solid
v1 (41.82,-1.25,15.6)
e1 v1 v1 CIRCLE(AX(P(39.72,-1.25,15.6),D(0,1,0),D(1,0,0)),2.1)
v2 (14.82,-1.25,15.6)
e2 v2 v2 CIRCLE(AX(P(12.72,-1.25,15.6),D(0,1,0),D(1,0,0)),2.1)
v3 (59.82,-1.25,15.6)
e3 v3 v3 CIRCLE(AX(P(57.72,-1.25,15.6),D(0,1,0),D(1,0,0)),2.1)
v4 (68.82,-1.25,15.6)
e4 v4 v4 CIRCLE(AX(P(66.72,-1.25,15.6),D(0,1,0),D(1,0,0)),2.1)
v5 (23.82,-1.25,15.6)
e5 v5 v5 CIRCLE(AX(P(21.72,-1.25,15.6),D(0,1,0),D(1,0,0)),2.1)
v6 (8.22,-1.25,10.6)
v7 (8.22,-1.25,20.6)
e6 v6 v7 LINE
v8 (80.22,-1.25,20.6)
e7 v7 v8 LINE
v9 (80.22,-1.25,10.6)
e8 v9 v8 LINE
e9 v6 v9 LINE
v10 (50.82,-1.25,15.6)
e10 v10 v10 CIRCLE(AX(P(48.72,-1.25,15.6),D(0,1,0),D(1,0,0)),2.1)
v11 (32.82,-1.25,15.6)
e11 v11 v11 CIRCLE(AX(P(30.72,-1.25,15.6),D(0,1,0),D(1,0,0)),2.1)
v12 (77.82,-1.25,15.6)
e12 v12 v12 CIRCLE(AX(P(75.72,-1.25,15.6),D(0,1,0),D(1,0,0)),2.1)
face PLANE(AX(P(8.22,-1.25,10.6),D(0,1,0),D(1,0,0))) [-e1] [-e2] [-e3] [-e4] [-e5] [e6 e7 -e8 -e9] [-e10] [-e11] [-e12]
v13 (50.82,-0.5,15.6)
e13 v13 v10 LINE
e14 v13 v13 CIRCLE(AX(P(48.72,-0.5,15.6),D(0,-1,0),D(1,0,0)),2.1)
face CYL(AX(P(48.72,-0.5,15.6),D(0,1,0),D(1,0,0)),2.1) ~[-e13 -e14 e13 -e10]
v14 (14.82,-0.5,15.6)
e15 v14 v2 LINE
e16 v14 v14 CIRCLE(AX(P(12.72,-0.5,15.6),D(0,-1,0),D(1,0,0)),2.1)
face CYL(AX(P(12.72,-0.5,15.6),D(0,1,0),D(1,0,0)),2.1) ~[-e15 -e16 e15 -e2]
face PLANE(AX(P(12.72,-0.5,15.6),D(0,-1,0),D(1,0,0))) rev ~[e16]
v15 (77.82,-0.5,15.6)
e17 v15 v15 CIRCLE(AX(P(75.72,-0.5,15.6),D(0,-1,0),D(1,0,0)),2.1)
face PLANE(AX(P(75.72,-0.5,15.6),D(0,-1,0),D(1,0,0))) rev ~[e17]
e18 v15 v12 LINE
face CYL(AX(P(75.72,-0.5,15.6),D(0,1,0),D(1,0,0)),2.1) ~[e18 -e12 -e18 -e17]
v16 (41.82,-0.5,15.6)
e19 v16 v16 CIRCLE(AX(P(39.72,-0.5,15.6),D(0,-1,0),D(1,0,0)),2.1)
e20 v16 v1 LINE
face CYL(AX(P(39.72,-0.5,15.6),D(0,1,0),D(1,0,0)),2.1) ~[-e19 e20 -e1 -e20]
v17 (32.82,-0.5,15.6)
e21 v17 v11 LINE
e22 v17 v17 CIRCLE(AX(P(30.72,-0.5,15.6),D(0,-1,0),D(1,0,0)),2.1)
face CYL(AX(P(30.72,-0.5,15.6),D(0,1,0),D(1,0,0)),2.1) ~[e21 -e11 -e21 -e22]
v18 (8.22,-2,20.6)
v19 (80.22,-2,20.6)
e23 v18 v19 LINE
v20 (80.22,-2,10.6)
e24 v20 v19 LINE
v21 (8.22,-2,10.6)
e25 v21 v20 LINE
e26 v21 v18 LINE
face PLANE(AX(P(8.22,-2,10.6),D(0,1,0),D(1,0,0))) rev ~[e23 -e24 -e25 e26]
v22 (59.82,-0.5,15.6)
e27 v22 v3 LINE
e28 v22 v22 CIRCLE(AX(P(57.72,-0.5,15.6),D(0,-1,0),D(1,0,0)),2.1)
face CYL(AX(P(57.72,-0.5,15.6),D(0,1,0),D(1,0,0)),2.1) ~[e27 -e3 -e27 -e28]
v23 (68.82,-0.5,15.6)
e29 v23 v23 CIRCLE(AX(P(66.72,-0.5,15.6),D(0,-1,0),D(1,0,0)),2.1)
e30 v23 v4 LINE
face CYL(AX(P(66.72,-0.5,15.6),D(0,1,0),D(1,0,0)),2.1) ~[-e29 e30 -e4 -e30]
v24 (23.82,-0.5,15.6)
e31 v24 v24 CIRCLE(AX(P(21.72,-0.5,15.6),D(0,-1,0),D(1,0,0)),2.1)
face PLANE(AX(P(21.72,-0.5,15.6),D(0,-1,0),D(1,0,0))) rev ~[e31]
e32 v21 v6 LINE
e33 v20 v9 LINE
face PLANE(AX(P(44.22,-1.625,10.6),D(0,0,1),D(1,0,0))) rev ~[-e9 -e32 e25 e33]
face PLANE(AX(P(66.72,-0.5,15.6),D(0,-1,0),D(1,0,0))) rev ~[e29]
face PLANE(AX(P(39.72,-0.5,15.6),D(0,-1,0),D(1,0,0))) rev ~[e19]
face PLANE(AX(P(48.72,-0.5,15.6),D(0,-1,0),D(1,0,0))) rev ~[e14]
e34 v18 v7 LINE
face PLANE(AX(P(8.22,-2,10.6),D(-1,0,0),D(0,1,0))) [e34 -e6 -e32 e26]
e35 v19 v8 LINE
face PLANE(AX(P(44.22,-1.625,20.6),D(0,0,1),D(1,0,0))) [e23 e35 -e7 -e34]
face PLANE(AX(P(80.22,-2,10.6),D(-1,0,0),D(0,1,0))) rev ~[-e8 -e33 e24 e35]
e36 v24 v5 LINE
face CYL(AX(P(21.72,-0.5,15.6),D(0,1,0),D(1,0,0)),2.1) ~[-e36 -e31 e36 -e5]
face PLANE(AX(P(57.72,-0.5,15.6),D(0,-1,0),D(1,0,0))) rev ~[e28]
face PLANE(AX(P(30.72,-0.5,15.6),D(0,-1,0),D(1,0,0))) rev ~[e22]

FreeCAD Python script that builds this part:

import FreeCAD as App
import Part
import Sketcher

V = App.Vector


def add_polygon(sketch, points):
    """Adds a closed chain of lines whose ends are joined by coincident constraints."""
    first, n = sketch.GeometryCount, len(points)
    for a, b in zip(points, points[1:] + points[:1]):
        sketch.addGeometry(Part.LineSegment(App.Vector(*a, 0), App.Vector(*b, 0)), False)
    for i in range(n):
        sketch.addConstraint(Sketcher.Constraint("Coincident", first + i, 2, first + (i + 1) % n, 1))

doc = App.newDocument("Part")
params = doc.addObject("Spreadsheet::Sheet", "Params")
for row, (alias, value) in enumerate([
    ("sketch1_diameter", "4.2 mm"),
    ("pad1_length", "1.5 mm"),
    ("sketch2_diameter", "4.2 mm"),
    ("pad2_length", "1.5 mm"),
    ("sketch3_diameter", "4.2 mm"),
    ("pad3_length", "1.5 mm"),
    ("sketch4_diameter", "4.2 mm"),
    ("pad4_length", "1.5 mm"),
    ("sketch5_diameter", "4.2 mm"),
    ("pad5_length", "1.5 mm"),
    ("sketch6_diameter", "4.2 mm"),
    ("pad6_length", "1.5 mm"),
    ("sketch7_diameter", "4.2 mm"),
    ("pad7_length", "1.5 mm"),
    ("sketch8_diameter", "4.2 mm"),
    ("pad8_length", "1.5 mm"),
    ("sketch9_width", "72 mm"),
    ("sketch9_height", "0.75 mm"),
    ("pad9_length", "10 mm"),
], start=1):
    params.set(f"A{row}", alias)
    params.set(f"B{row}", "=" + value)
    params.setAlias(f"B{row}", alias)

body = doc.addObject("PartDesign::Body", "Body")

# Sketch on XY plane
sketch1 = body.newObject("Sketcher::SketchObject", "Sketch")
sketch1.AttachmentSupport = (doc.getObject("XY_Plane"), [""])
sketch1.MapMode = "FlatFace"
sketch1.addGeometry(Part.Circle(V(0, 0, 0), V(0, 0, 1), 2.1), False)
sketch1.addConstraint(Sketcher.Constraint("Coincident", 0, 3, -1, 1))
sketch1.addConstraint(Sketcher.Constraint("Diameter", 0, 4.2))
sketch1.setExpression("Constraints[1]", "Params.sketch1_diameter")
pad1 = body.newObject("PartDesign::Pad", "Pad")
pad1.Profile = sketch1
pad1.setExpression("Length", "Params.pad1_length")
body2 = doc.addObject("PartDesign::Body", "Body001")
doc.recompute()

body.Placement = App.Placement(V(0, 0, 0), App.Rotation(V(1, 0, 0), 90))
boolean = body2.newObject("PartDesign::Boolean", "Boolean")
boolean.Type = "Fuse"
boolean.addObjects([body])
body3 = doc.addObject("PartDesign::Body", "Body002")
doc.recompute()

body2.Placement = App.Placement(V(39.72, -0.5, 15.6), App.Rotation(V(0, 0, 1), 0))
boolean2 = body3.newObject("PartDesign::Boolean", "Boolean001")
boolean2.Type = "Fuse"
boolean2.addObjects([body2])
body4 = doc.addObject("PartDesign::Body", "Body003")

# Sketch on XY plane
sketch2 = body4.newObject("Sketcher::SketchObject", "Sketch001")
sketch2.AttachmentSupport = (doc.getObject("XY_Plane003"), [""])
sketch2.MapMode = "FlatFace"
sketch2.addGeometry(Part.Circle(V(0, 0, 0), V(0, 0, 1), 2.1), False)
sketch2.addConstraint(Sketcher.Constraint("Coincident", 0, 3, -1, 1))
sketch2.addConstraint(Sketcher.Constraint("Diameter", 0, 4.2))
sketch2.setExpression("Constraints[1]", "Params.sketch2_diameter")
pad2 = body4.newObject("PartDesign::Pad", "Pad001")
pad2.Profile = sketch2
pad2.setExpression("Length", "Params.pad2_length")
body5 = doc.addObject("PartDesign::Body", "Body004")
doc.recompute()

body4.Placement = App.Placement(V(0, 0, 0), App.Rotation(V(1, 0, 0), 90))
boolean3 = body5.newObject("PartDesign::Boolean", "Boolean002")
boolean3.Type = "Fuse"
boolean3.addObjects([body4])
body6 = doc.addObject("PartDesign::Body", "Body005")
doc.recompute()

body5.Placement = App.Placement(V(21.72, -0.5, 15.6), App.Rotation(V(0, 0, 1), 0))
boolean4 = body6.newObject("PartDesign::Boolean", "Boolean003")
boolean4.Type = "Fuse"
boolean4.addObjects([body5])
body7 = doc.addObject("PartDesign::Body", "Body006")

# Sketch on XY plane
sketch3 = body7.newObject("Sketcher::SketchObject", "Sketch002")
sketch3.AttachmentSupport = (doc.getObject("XY_Plane006"), [""])
sketch3.MapMode = "FlatFace"
sketch3.addGeometry(Part.Circle(V(0, 0, 0), V(0, 0, 1), 2.1), False)
sketch3.addConstraint(Sketcher.Constraint("Coincident", 0, 3, -1, 1))
sketch3.addConstraint(Sketcher.Constraint("Diameter", 0, 4.2))
sketch3.setExpression("Constraints[1]", "Params.sketch3_diameter")
pad3 = body7.newObject("PartDesign::Pad", "Pad002")
pad3.Profile = sketch3
pad3.setExpression("Length", "Params.pad3_length")
body8 = doc.addObject("PartDesign::Body", "Body007")
doc.recompute()

body7.Placement = App.Placement(V(0, 0, 0), App.Rotation(V(1, 0, 0), 90))
boolean5 = body8.newObject("PartDesign::Boolean", "Boolean004")
boolean5.Type = "Fuse"
boolean5.addObjects([body7])
body9 = doc.addObject("PartDesign::Body", "Body008")
doc.recompute()

body8.Placement = App.Placement(V(48.72, -0.5, 15.6), App.Rotation(V(0, 0, 1), 0))
boolean6 = body9.newObject("PartDesign::Boolean", "Boolean005")
boolean6.Type = "Fuse"
boolean6.addObjects([body8])
body10 = doc.addObject("PartDesign::Body", "Body009")

# Sketch on XY plane
sketch4 = body10.newObject("Sketcher::SketchObject", "Sketch003")
sketch4.AttachmentSupport = (doc.getObject("XY_Plane009"), [""])
sketch4.MapMode = "FlatFace"
sketch4.addGeometry(Part.Circle(V(0, 0, 0), V(0, 0, 1), 2.1), False)
sketch4.addConstraint(Sketcher.Constraint("Coincident", 0, 3, -1, 1))
sketch4.addConstraint(Sketcher.Constraint("Diameter", 0, 4.2))
sketch4.setExpression("Constraints[1]", "Params.sketch4_diameter")
pad4 = body10.newObject("PartDesign::Pad", "Pad003")
pad4.Profile = sketch4
pad4.setExpression("Length", "Params.pad4_length")
body11 = doc.addObject("PartDesign::Body", "Body010")
doc.recompute()

body10.Placement = App.Placement(V(0, 0, 0), App.Rotation(V(1, 0, 0), 90))
boolean7 = body11.newObject("PartDesign::Boolean", "Boolean006")
boolean7.Type = "Fuse"
boolean7.addObjects([body10])
body12 = doc.addObject("PartDesign::Body", "Body011")
doc.recompute()

body11.Placement = App.Placement(V(66.72, -0.5, 15.6), App.Rotation(V(0, 0, 1), 0))
boolean8 = body12.newObject("PartDesign::Boolean", "Boolean007")
boolean8.Type = "Fuse"
boolean8.addObjects([body11])
body13 = doc.addObject("PartDesign::Body", "Body012")

# Sketch on XY plane
sketch5 = body13.newObject("Sketcher::SketchObject", "Sketch004")
sketch5.AttachmentSupport = (doc.getObject("XY_Plane012"), [""])
sketch5.MapMode = "FlatFace"
sketch5.addGeometry(Part.Circle(V(0, 0, 0), V(0, 0, 1), 2.1), False)
sketch5.addConstraint(Sketcher.Constraint("Coincident", 0, 3, -1, 1))
sketch5.addConstraint(Sketcher.Constraint("Diameter", 0, 4.2))
sketch5.setExpression("Constraints[1]", "Params.sketch5_diameter")
pad5 = body13.newObject("PartDesign::Pad", "Pad004")
pad5.Profile = sketch5
pad5.setExpression("Length", "Params.pad5_length")
body14 = doc.addObject("PartDesign::Body", "Body013")
doc.recompute()

body13.Placement = App.Placement(V(0, 0, 0), App.Rotation(V(1, 0, 0), 90))
boolean9 = body14.newObject("PartDesign::Boolean", "Boolean008")
boolean9.Type = "Fuse"
boolean9.addObjects([body13])
body15 = doc.addObject("PartDesign::Body", "Body014")
doc.recompute()

body14.Placement = App.Placement(V(57.72, -0.5, 15.6), App.Rotation(V(0, 0, 1), 0))
boolean10 = body15.newObject("PartDesign::Boolean", "Boolean009")
boolean10.Type = "Fuse"
boolean10.addObjects([body14])
body16 = doc.addObject("PartDesign::Body", "Body015")

# Sketch on XY plane
sketch6 = body16.newObject("Sketcher::SketchObject", "Sketch005")
sketch6.AttachmentSupport = (doc.getObject("XY_Plane015"), [""])
sketch6.MapMode = "FlatFace"
sketch6.addGeometry(Part.Circle(V(0, 0, 0), V(0, 0, 1), 2.1), False)
sketch6.addConstraint(Sketcher.Constraint("Coincident", 0, 3, -1, 1))
sketch6.addConstraint(Sketcher.Constraint("Diameter", 0, 4.2))
sketch6.setExpression("Constraints[1]", "Params.sketch6_diameter")
pad6 = body16.newObject("PartDesign::Pad", "Pad005")
pad6.Profile = sketch6
pad6.setExpression("Length", "Params.pad6_length")
body17 = doc.addObject("PartDesign::Body", "Body016")
doc.recompute()

body16.Placement = App.Placement(V(0, 0, 0), App.Rotation(V(1, 0, 0), 90))
boolean11 = body17.newObject("PartDesign::Boolean", "Boolean010")
boolean11.Type = "Fuse"
boolean11.addObjects([body16])
body18 = doc.addObject("PartDesign::Body", "Body017")
doc.recompute()

body17.Placement = App.Placement(V(75.72, -0.5, 15.6), App.Rotation(V(0, 0, 1), 0))
boolean12 = body18.newObject("PartDesign::Boolean", "Boolean011")
boolean12.Type = "Fuse"
boolean12.addObjects([body17])
body19 = doc.addObject("PartDesign::Body", "Body018")

# Sketch on XY plane
sketch7 = body19.newObject("Sketcher::SketchObject", "Sketch006")
sketch7.AttachmentSupport = (doc.getObject("XY_Plane018"), [""])
sketch7.MapMode = "FlatFace"
sketch7.addGeometry(Part.Circle(V(0, 0, 0), V(0, 0, 1), 2.1), False)
sketch7.addConstraint(Sketcher.Constraint("Coincident", 0, 3, -1, 1))
sketch7.addConstraint(Sketcher.Constraint("Diameter", 0, 4.2))
sketch7.setExpression("Constraints[1]", "Params.sketch7_diameter")
pad7 = body19.newObject("PartDesign::Pad", "Pad006")
pad7.Profile = sketch7
pad7.setExpression("Length", "Params.pad7_length")
body20 = doc.addObject("PartDesign::Body", "Body019")
doc.recompute()

body19.Placement = App.Placement(V(0, 0, 0), App.Rotation(V(1, 0, 0), 90))
boolean13 = body20.newObject("PartDesign::Boolean", "Boolean012")
boolean13.Type = "Fuse"
boolean13.addObjects([body19])
body21 = doc.addObject("PartDesign::Body", "Body020")
doc.recompute()

body20.Placement = App.Placement(V(30.72, -0.5, 15.6), App.Rotation(V(0, 0, 1), 0))
boolean14 = body21.newObject("PartDesign::Boolean", "Boolean013")
boolean14.Type = "Fuse"
boolean14.addObjects([body20])
body22 = doc.addObject("PartDesign::Body", "Body021")

# Sketch on XY plane
sketch8 = body22.newObject("Sketcher::SketchObject", "Sketch007")
sketch8.AttachmentSupport = (doc.getObject("XY_Plane021"), [""])
sketch8.MapMode = "FlatFace"
sketch8.addGeometry(Part.Circle(V(0, 0, 0), V(0, 0, 1), 2.1), False)
sketch8.addConstraint(Sketcher.Constraint("Coincident", 0, 3, -1, 1))
sketch8.addConstraint(Sketcher.Constraint("Diameter", 0, 4.2))
sketch8.setExpression("Constraints[1]", "Params.sketch8_diameter")
pad8 = body22.newObject("PartDesign::Pad", "Pad007")
pad8.Profile = sketch8
pad8.setExpression("Length", "Params.pad8_length")
body23 = doc.addObject("PartDesign::Body", "Body022")
doc.recompute()

body22.Placement = App.Placement(V(0, 0, 0), App.Rotation(V(1, 0, 0), 90))
boolean15 = body23.newObject("PartDesign::Boolean", "Boolean014")
boolean15.Type = "Fuse"
boolean15.addObjects([body22])
body24 = doc.addObject("PartDesign::Body", "Body023")
doc.recompute()

body23.Placement = App.Placement(V(12.72, -0.5, 15.6), App.Rotation(V(0, 0, 1), 0))
boolean16 = body24.newObject("PartDesign::Boolean", "Boolean015")
boolean16.Type = "Fuse"
boolean16.addObjects([body23])
body25 = doc.addObject("PartDesign::Body", "Body024")

# Sketch on XY plane
sketch9 = body25.newObject("Sketcher::SketchObject", "Sketch008")
sketch9.AttachmentSupport = (doc.getObject("XY_Plane024"), [""])
sketch9.MapMode = "FlatFace"
sketch9.AttachmentOffset = App.Placement(V(0, 0, 10.6), App.Rotation())
add_polygon(sketch9, [(8.22, -1.25), (8.22, -2), (80.22, -2), (80.22, -1.25)])  # lines 0-3
sketch9.addConstraint(Sketcher.Constraint("Vertical", 0))
sketch9.addConstraint(Sketcher.Constraint("Horizontal", 1))
sketch9.addConstraint(Sketcher.Constraint("Vertical", 2))
sketch9.addConstraint(Sketcher.Constraint("Horizontal", 3))
sketch9.addConstraint(Sketcher.Constraint("DistanceX", 1, 1, 1, 2, 72.0))
sketch9.addConstraint(Sketcher.Constraint("DistanceY", 0, 2, -1, 1, 2.0))
sketch9.addConstraint(Sketcher.Constraint("DistanceY", 0, 2, 0, 1, 0.75))
sketch9.addConstraint(Sketcher.Constraint("DistanceX", -1, 1, 0, 2, 8.22))
sketch9.setExpression("Constraints[8]", "Params.sketch9_width")
sketch9.setExpression("Constraints[10]", "Params.sketch9_height")
pad9 = body25.newObject("PartDesign::Pad", "Pad008")
pad9.Profile = sketch9
pad9.setExpression("Length", "Params.pad9_length")
doc.recompute()

boolean17 = body25.newObject("PartDesign::Boolean", "Boolean016")
boolean17.Type = "Fuse"
boolean17.addObjects([body3])
doc.recompute()

boolean18 = body25.newObject("PartDesign::Boolean", "Boolean017")
boolean18.Type = "Fuse"
boolean18.addObjects([body6])
doc.recompute()

boolean19 = body25.newObject("PartDesign::Boolean", "Boolean018")
boolean19.Type = "Fuse"
boolean19.addObjects([body9])
doc.recompute()

boolean20 = body25.newObject("PartDesign::Boolean", "Boolean019")
boolean20.Type = "Fuse"
boolean20.addObjects([body12])
doc.recompute()

boolean21 = body25.newObject("PartDesign::Boolean", "Boolean020")
boolean21.Type = "Fuse"
boolean21.addObjects([body15])
doc.recompute()

boolean22 = body25.newObject("PartDesign::Boolean", "Boolean021")
boolean22.Type = "Fuse"
boolean22.addObjects([body18])
doc.recompute()

boolean23 = body25.newObject("PartDesign::Boolean", "Boolean022")
boolean23.Type = "Fuse"
boolean23.addObjects([body21])
doc.recompute()

boolean24 = body25.newObject("PartDesign::Boolean", "Boolean023")
boolean24.Type = "Fuse"
boolean24.addObjects([body24])

doc.recompute()
